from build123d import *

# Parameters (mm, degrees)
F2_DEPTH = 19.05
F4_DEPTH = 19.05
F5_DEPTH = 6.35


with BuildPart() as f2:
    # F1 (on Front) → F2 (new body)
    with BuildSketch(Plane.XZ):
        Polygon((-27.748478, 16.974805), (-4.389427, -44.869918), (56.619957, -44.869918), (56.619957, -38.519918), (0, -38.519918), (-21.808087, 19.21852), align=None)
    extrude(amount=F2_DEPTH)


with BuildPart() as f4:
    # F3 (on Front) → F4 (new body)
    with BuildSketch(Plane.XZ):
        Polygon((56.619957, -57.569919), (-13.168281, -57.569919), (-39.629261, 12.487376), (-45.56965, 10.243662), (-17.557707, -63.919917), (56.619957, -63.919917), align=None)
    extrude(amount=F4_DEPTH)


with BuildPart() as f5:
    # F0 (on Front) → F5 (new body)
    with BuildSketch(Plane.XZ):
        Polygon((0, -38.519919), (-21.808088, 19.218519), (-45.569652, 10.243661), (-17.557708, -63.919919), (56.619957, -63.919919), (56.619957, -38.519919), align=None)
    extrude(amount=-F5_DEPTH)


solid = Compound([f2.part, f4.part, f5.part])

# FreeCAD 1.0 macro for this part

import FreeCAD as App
import Part
import Sketcher
from FreeCAD import Vector
Q = App.Units.Quantity


def add_polygon(sketch, points):
    """Adds a closed chain of lines whose ends are joined by coincident constraints."""
    first, n = sketch.GeometryCount, len(points)
    for a, b in zip(points, points[1:] + points[:1]):
        sketch.addGeometry(Part.LineSegment(App.Vector(*a, 0), App.Vector(*b, 0)), False)
    for i in range(n):
        sketch.addConstraint(Sketcher.Constraint("Coincident", first + i, 2, first + (i + 1) % n, 1))

doc = App.newDocument("Part")
params = doc.addObject("Spreadsheet::Sheet", "Params")
for row, (alias, value) in enumerate([
    ("sketch1_height", "0.25 in"),
    ("sketch1_length", "0.25 in"),
    ("pad1_length", "0.75 in"),
    ("sketch2_height", "0.2499999 in"),
    ("sketch2_length", "0.2499999 in"),
    ("pad2_length", "0.75 in"),
    ("sketch3_height", "1 in"),
    ("sketch3_length", "1 in"),
    ("pad3_length", "0.25 in"),
], start=1):
    params.set(f"A{row}", alias)
    params.set(f"B{row}", "=" + value)
    params.setAlias(f"B{row}", alias)

body = doc.addObject("PartDesign::Body", "Body")

sketch1 = body.newObject("Sketcher::SketchObject", "Sketch")
sketch1.AttachmentSupport = (doc.getObject("XZ_Plane"), [""])
sketch1.MapMode = "FlatFace"
add_polygon(sketch1, [(-27.748478, 16.974805), (-4.389427, -44.869918), (56.619957, -44.869918), (56.619957, -38.519918), (0, -38.519918), (-21.808087, 19.21852)])
sketch1.addConstraint([
    Sketcher.Constraint("Horizontal", 1),
    Sketcher.Constraint("Vertical", 2),
    Sketcher.Constraint("Horizontal", 3),
    Sketcher.Constraint("PointOnObject", 3, 2, -2),
    Sketcher.Constraint("Parallel", 0, 4),
    Sketcher.Constraint("Perpendicular", 4, 5),
    Sketcher.Constraint("DistanceY", 2, 1, 2, 2, Q("0.25 in")),
    Sketcher.Constraint("Distance", 5, Q("0.25 in")),
    Sketcher.Constraint("DistanceX", 1, 1, 1, 2, 61.009384),
    Sketcher.Constraint("DistanceX", 3, 2, 3, 1, 56.619957),
    Sketcher.Constraint("DistanceY", -1, 1, 4, 2, 19.21852),
    Sketcher.Constraint("DistanceY", 3, 2, 4, 2, 57.738438),
])
sketch1.setExpression("Constraints[12]", "Params.sketch1_height")
sketch1.setExpression("Constraints[13]", "Params.sketch1_length")
pad1 = body.newObject("PartDesign::Pad", "Pad")
pad1.Profile = sketch1
pad1.setExpression("Length", "Params.pad1_length")
body2 = doc.addObject("PartDesign::Body", "Body001")

sketch2 = body2.newObject("Sketcher::SketchObject", "Sketch001")
sketch2.AttachmentSupport = (doc.getObject("XZ_Plane001"), [""])
sketch2.MapMode = "FlatFace"
add_polygon(sketch2, [(56.619957, -57.569919), (-13.168281, -57.569919), (-39.629261, 12.487376), (-45.56965, 10.243662), (-17.557707, -63.919917), (56.619957, -63.919917)])
sketch2.addConstraint([
    Sketcher.Constraint("Horizontal", 0),
    Sketcher.Constraint("Horizontal", 4),
    Sketcher.Constraint("Vertical", 5),
    Sketcher.Constraint("Perpendicular", 1, 2),
    Sketcher.Constraint("Perpendicular", 2, 3),
    Sketcher.Constraint("DistanceY", 5, 1, 5, 2, Q("0.2499999 in")),
    Sketcher.Constraint("Distance", 2, Q("0.2499999 in")),
    Sketcher.Constraint("DistanceX", 0, 2, 0, 1, 69.788238),
    Sketcher.Constraint("Distance", 1, 74.88797),
    Sketcher.Constraint("DistanceX", 4, 1, 4, 2, 74.177664),
    Sketcher.Constraint("DistanceX", 0, 2, -1, 1, 13.168281),
    Sketcher.Constraint("DistanceY", 0, 2, -1, 1, 57.569919),
])
sketch2.setExpression("Constraints[11]", "Params.sketch2_height")
sketch2.setExpression("Constraints[12]", "Params.sketch2_length")
pad2 = body2.newObject("PartDesign::Pad", "Pad001")
pad2.Profile = sketch2
pad2.setExpression("Length", "Params.pad2_length")
body3 = doc.addObject("PartDesign::Body", "Body002")

sketch3 = body3.newObject("Sketcher::SketchObject", "Sketch002")
sketch3.AttachmentSupport = (doc.getObject("XZ_Plane002"), [""])
sketch3.MapMode = "FlatFace"
add_polygon(sketch3, [(0, -38.519919), (-21.808088, 19.218519), (-45.569652, 10.243661), (-17.557708, -63.919919), (56.619957, -63.919919), (56.619957, -38.519919)])
sketch3.addConstraint([
    Sketcher.Constraint("Horizontal", 3),
    Sketcher.Constraint("Vertical", 4),
    Sketcher.Constraint("Horizontal", 5),
    Sketcher.Constraint("PointOnObject", 5, 2, -2),
    Sketcher.Constraint("Perpendicular", 0, 1),
    Sketcher.Constraint("Perpendicular", 1, 2),
    Sketcher.Constraint("DistanceY", 4, 1, 4, 2, Q("1 in")),
    Sketcher.Constraint("Distance", 1, Q("1 in")),
    Sketcher.Constraint("Distance", 0, 61.719688),
    Sketcher.Constraint("DistanceX", 3, 1, 3, 2, 74.177665),
    Sketcher.Constraint("DistanceX", 5, 2, 5, 1, 56.619957),
    Sketcher.Constraint("DistanceY", -1, 1, 0, 2, 19.218519),
])
sketch3.setExpression("Constraints[12]", "Params.sketch3_height")
sketch3.setExpression("Constraints[13]", "Params.sketch3_length")
pad3 = body3.newObject("PartDesign::Pad", "Pad002")
pad3.Profile = sketch3
pad3.setExpression("Length", "Params.pad3_length")
pad3.Reversed = True

doc.recompute()
